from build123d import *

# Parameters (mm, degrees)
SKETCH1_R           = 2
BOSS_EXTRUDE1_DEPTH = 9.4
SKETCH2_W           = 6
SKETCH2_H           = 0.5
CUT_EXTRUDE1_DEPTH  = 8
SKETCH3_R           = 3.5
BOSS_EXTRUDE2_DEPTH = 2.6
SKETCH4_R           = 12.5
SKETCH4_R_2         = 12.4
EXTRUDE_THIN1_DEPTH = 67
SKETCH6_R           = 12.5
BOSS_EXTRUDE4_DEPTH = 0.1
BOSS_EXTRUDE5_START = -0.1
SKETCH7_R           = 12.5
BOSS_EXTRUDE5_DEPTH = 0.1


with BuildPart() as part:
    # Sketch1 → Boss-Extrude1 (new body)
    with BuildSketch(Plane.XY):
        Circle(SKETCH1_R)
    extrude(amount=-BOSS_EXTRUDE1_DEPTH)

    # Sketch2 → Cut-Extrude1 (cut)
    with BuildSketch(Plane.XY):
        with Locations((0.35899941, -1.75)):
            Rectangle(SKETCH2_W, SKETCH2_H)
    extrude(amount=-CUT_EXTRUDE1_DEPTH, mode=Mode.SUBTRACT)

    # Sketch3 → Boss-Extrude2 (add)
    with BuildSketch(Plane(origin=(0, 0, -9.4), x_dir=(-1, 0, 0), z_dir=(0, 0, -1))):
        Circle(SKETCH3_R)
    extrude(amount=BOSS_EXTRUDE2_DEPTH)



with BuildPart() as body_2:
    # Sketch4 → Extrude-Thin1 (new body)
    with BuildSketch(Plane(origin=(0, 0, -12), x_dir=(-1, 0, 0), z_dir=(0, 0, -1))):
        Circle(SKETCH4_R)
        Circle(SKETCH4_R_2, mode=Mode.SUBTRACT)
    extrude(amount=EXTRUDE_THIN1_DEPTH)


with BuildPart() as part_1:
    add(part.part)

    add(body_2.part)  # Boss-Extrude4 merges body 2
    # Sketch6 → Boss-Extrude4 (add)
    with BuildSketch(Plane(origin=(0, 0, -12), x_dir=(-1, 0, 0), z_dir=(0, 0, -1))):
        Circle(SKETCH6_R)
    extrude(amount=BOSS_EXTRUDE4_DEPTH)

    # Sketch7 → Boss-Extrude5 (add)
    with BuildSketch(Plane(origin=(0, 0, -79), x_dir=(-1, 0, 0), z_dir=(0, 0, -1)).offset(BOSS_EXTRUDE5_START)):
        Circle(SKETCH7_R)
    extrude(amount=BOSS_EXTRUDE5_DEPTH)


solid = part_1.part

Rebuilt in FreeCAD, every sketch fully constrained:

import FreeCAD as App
import Part
import Sketcher

V = App.Vector
Q = App.Units.Quantity

doc = App.newDocument("Part")
body = doc.addObject("PartDesign::Body", "Body")

sketch1 = body.newObject("Sketcher::SketchObject", "Sketch")
sketch1.AttachmentSupport = (doc.getObject("XY_Plane"), [""])
sketch1.MapMode = "FlatFace"
sketch1.addGeometry(Part.Circle(V(0, 0, 0), V(0, 0, 1), 2), False)
sketch1.addConstraint(Sketcher.Constraint("Coincident", 0, 3, -1, 1))
sketch1.addConstraint(Sketcher.Constraint("Diameter", 0, Q("4 mm")))
pad1 = body.newObject("PartDesign::Pad", "Pad")
pad1.Profile = sketch1
pad1.Length = 9.4
pad1.Reversed = True

sketch2 = body.newObject("Sketcher::SketchObject", "Sketch001")
sketch2.AttachmentSupport = (doc.getObject("XY_Plane"), [""])
sketch2.MapMode = "FlatFace"
sketch2.addGeometry(Part.LineSegment(V(-2.6, -1.5, 0), V(-2.6, -2, 0)), False)
sketch2.addGeometry(Part.LineSegment(V(-2.6, -2, 0), V(3.4, -2, 0)), False)
sketch2.addGeometry(Part.LineSegment(V(3.4, -2, 0), V(3.4, -1.5, 0)), False)
sketch2.addGeometry(Part.LineSegment(V(3.4, -1.5, 0), V(-2.6, -1.5, 0)), False)
sketch2.addConstraint(Sketcher.Constraint("Coincident", 0, 2, 1, 1))
sketch2.addConstraint(Sketcher.Constraint("Coincident", 1, 2, 2, 1))
sketch2.addConstraint(Sketcher.Constraint("Coincident", 2, 2, 3, 1))
sketch2.addConstraint(Sketcher.Constraint("Coincident", 3, 2, 0, 1))
sketch2.addConstraint(Sketcher.Constraint("Vertical", 0))
sketch2.addConstraint(Sketcher.Constraint("Horizontal", 1))
sketch2.addConstraint(Sketcher.Constraint("Vertical", 2))
sketch2.addConstraint(Sketcher.Constraint("Horizontal", 3))
sketch2.addConstraint(Sketcher.Constraint("DistanceX", 1, 1, 1, 2, Q("6 mm")))
sketch2.addConstraint(Sketcher.Constraint("DistanceY", 0, 2, 0, 1, Q("0.5 mm")))
sketch2.addConstraint(Sketcher.Constraint("DistanceY", 0, 2, -1, 1, Q("2 mm")))
sketch2.addConstraint(Sketcher.Constraint("DistanceX", 0, 2, -1, 1, Q("2.641001 mm")))
pocket1 = body.newObject("PartDesign::Pocket", "Pocket")
pocket1.Profile = sketch2
pocket1.Length = 8

sketch3 = body.newObject("Sketcher::SketchObject", "Sketch002")
sketch3.AttachmentSupport = (doc.getObject("XY_Plane"), [""])
sketch3.MapMode = "FlatFace"
sketch3.AttachmentOffset = App.Placement(V(0, 0, -9.4), App.Rotation())
sketch3.addGeometry(Part.Circle(V(0, 0, 0), V(0, 0, 1), 3.5), False)
sketch3.addConstraint(Sketcher.Constraint("Coincident", 0, 3, -1, 1))
sketch3.addConstraint(Sketcher.Constraint("Diameter", 0, Q("7 mm")))
pad2 = body.newObject("PartDesign::Pad", "Pad001")
pad2.Profile = sketch3
pad2.Length = 2.6
pad2.Reversed = True
body2 = doc.addObject("PartDesign::Body", "Body001")

sketch4 = body2.newObject("Sketcher::SketchObject", "Sketch003")
sketch4.AttachmentSupport = (doc.getObject("XY_Plane001"), [""])
sketch4.MapMode = "FlatFace"
sketch4.AttachmentOffset = App.Placement(V(0, 0, -12), App.Rotation())
sketch4.addGeometry(Part.Circle(V(0, 0, 0), V(0, 0, 1), 12), False)
sketch4.addGeometry(Part.Circle(V(0, 0, 0), V(0, 0, 1), 12), False)
sketch4.addConstraint(Sketcher.Constraint("Coincident", 0, 3, -1, 1))
sketch4.addConstraint(Sketcher.Constraint("Coincident", 1, 3, -1, 1))
sketch4.addConstraint(Sketcher.Constraint("Diameter", 0, Q("25 mm")))
sketch4.addConstraint(Sketcher.Constraint("Diameter", 1, Q("24.8 mm")))
pad3 = body2.newObject("PartDesign::Pad", "Pad002")
pad3.Profile = sketch4
pad3.Length = 67
pad3.Reversed = True
body.AllowCompound = True
doc.recompute()

boolean = body.newObject("PartDesign::Boolean", "Boolean")
boolean.Type = "Fuse"
boolean.addObjects([body2])

sketch5 = body.newObject("Sketcher::SketchObject", "Sketch004")
sketch5.AttachmentSupport = (doc.getObject("XY_Plane"), [""])
sketch5.MapMode = "FlatFace"
sketch5.AttachmentOffset = App.Placement(V(0, 0, -12), App.Rotation())
sketch5.addGeometry(Part.Circle(V(0, 0, 0), V(0, 0, 1), 12), False)
sketch5.addConstraint(Sketcher.Constraint("Coincident", 0, 3, -1, 1))
sketch5.addConstraint(Sketcher.Constraint("Diameter", 0, Q("25 mm")))
pad4 = body.newObject("PartDesign::Pad", "Pad003")
pad4.Profile = sketch5
pad4.Length = 0.1
pad4.Reversed = True

sketch6 = body.newObject("Sketcher::SketchObject", "Sketch005")
sketch6.AttachmentSupport = (doc.getObject("XY_Plane"), [""])
sketch6.MapMode = "FlatFace"
sketch6.AttachmentOffset = App.Placement(V(0, 0, -78.9), App.Rotation())
sketch6.addGeometry(Part.Circle(V(0, 0, 0), V(0, 0, 1), 12), False)
sketch6.addConstraint(Sketcher.Constraint("Coincident", 0, 3, -1, 1))
sketch6.addConstraint(Sketcher.Constraint("Diameter", 0, Q("25 mm")))
pad5 = body.newObject("PartDesign::Pad", "Pad004")
pad5.Profile = sketch6
pad5.Length = 0.1
pad5.Reversed = True

doc.recompute()
